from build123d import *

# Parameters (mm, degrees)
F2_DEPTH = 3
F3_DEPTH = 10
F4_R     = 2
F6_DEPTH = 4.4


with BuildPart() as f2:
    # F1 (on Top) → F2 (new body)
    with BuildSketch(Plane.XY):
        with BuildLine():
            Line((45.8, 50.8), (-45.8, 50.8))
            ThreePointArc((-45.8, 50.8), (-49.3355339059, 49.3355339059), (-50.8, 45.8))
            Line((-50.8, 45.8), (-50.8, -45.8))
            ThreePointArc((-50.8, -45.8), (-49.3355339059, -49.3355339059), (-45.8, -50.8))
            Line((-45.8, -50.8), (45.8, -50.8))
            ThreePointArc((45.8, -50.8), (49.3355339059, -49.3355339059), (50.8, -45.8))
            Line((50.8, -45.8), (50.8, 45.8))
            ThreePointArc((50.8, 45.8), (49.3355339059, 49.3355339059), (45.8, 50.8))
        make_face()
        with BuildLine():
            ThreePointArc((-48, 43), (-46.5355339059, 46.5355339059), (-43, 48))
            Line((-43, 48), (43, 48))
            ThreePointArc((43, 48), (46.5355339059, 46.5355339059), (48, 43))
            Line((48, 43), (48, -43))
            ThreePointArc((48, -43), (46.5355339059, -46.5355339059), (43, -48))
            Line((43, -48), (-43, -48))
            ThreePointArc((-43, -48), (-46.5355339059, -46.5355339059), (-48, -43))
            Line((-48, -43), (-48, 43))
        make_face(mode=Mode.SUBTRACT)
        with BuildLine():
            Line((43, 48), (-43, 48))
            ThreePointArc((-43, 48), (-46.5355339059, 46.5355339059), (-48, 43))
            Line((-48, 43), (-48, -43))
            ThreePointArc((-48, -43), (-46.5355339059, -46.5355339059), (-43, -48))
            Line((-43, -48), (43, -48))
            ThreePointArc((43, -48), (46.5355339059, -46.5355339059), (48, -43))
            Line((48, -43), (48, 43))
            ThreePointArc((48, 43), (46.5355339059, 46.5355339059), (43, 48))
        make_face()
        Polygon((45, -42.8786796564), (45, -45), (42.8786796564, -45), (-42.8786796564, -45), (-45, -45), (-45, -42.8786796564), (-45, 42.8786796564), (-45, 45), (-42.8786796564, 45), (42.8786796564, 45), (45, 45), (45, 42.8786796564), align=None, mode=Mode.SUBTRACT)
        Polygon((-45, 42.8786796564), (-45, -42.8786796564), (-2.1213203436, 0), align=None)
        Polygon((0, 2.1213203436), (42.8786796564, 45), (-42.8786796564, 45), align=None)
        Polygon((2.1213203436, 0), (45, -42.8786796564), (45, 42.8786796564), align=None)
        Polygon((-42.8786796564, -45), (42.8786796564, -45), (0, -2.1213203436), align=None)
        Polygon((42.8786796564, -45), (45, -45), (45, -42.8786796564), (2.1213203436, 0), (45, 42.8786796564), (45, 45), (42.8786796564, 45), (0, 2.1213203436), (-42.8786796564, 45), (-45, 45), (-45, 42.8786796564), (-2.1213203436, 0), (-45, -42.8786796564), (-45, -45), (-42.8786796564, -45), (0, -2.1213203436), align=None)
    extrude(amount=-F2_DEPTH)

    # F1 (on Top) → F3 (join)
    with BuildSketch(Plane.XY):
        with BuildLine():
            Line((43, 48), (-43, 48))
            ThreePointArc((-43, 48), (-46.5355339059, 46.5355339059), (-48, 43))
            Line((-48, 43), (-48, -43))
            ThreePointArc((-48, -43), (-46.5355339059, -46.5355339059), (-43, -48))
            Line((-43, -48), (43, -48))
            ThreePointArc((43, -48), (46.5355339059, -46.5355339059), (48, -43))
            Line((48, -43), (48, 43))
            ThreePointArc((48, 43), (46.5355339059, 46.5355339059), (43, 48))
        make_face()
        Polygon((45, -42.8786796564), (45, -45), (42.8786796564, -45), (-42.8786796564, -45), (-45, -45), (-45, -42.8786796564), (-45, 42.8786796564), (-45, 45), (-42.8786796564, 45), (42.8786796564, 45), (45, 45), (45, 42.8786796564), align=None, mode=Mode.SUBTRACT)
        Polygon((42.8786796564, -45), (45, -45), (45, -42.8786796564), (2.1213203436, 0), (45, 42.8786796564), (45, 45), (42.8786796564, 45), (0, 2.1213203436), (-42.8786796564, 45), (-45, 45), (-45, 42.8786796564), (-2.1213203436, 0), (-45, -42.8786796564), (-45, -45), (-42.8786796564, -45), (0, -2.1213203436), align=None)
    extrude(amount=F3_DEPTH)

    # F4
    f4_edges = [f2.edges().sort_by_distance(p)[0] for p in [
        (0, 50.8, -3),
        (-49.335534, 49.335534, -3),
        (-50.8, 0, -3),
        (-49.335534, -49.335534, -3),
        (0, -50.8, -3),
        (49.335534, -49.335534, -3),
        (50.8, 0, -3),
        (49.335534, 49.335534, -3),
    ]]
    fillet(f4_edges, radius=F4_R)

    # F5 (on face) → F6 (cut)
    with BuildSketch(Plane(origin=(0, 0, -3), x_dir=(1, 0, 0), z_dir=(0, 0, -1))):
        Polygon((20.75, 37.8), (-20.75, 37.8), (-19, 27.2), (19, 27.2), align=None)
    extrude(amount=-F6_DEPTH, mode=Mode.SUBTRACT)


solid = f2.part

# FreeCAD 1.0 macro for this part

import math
import FreeCAD as App
import Part
import Sketcher

V = App.Vector
Q = App.Units.Quantity


def edges_at(feature, points):
    """Names of the edges that pass closest to the given points."""
    edges = feature.Shape.Edges
    near = lambda p: min(range(len(edges)), key=lambda i: edges[i].distToShape(Part.Vertex(*p))[0])
    return sorted({f"Edge{near(p) + 1}" for p in points})

doc = App.newDocument("Part")
params = doc.addObject("Spreadsheet::Sheet", "Params")
for row, (alias, value) in enumerate([
    ("sketch1_radius", "5 mm"),
    ("sketch1_width", "91.6 mm"),
    ("pad1_length", "3 mm"),
    ("sketch2_radius", "5 mm"),
    ("sketch2_width", "86 mm"),
    ("pad2_length", "10 mm"),
    ("fillet_radius", "2 mm"),
    ("sketch3_width", "38 mm"),
    ("sketch3_width2", "41.5 mm"),
    ("pocket1_length", "4.4 mm"),
], start=1):
    params.set(f"A{row}", alias)
    params.set(f"B{row}", "=" + value)
    params.setAlias(f"B{row}", alias)

body = doc.addObject("PartDesign::Body", "Body")

# Sketch on XY plane
sketch1 = body.newObject("Sketcher::SketchObject", "Sketch")
sketch1.AttachmentSupport = (doc.getObject("XY_Plane"), [""])
sketch1.MapMode = "FlatFace"
sketch1.addGeometry([
    Part.LineSegment(V(46, 51, 0), V(-46, 51, 0)),  # 0
    Part.ArcOfCircle(Part.Circle(V(-46, 46, 0), V(0, 0, 1), 5), math.radians(90), math.radians(180)),  # 1
    Part.LineSegment(V(-51, 46, 0), V(-51, -46, 0)),  # 2
    Part.ArcOfCircle(Part.Circle(V(-46, -46, 0), V(0, 0, 1), 5), math.radians(180), math.radians(270)),  # 3
    Part.LineSegment(V(-46, -51, 0), V(46, -51, 0)),  # 4
    Part.ArcOfCircle(Part.Circle(V(46, -46, 0), V(0, 0, 1), 5), math.radians(-90), math.radians(0)),  # 5
    Part.LineSegment(V(51, -46, 0), V(51, 46, 0)),  # 6
    Part.ArcOfCircle(Part.Circle(V(46, 46, 0), V(0, 0, 1), 5), math.radians(0), math.radians(90)),  # 7
], False)
sketch1.addConstraint([
    Sketcher.Constraint("Tangent", 0, 2, 1, 1),
    Sketcher.Constraint("Tangent", 1, 2, 2, 1),
    Sketcher.Constraint("Tangent", 2, 2, 3, 1),
    Sketcher.Constraint("Tangent", 3, 2, 4, 1),
    Sketcher.Constraint("Tangent", 4, 2, 5, 1),
    Sketcher.Constraint("Tangent", 5, 2, 6, 1),
    Sketcher.Constraint("Tangent", 6, 2, 7, 1),
    Sketcher.Constraint("Tangent", 7, 2, 0, 1),
    Sketcher.Constraint("Horizontal", 0),
    Sketcher.Constraint("Vertical", 2),
    Sketcher.Constraint("Horizontal", 4),
    Sketcher.Constraint("Vertical", 6),
    Sketcher.Constraint("Equal", 1, 3),
    Sketcher.Constraint("Equal", 3, 5),
    Sketcher.Constraint("Equal", 5, 7),
    Sketcher.Constraint("Symmetric", 1, 3, 5, 3, -1, 1),
    Sketcher.Constraint("Equal", 4, 2),
    Sketcher.Constraint("Radius", 1, Q("5 mm")),
    Sketcher.Constraint("DistanceX", 0, 2, 0, 1, Q("91.6 mm")),
])
sketch1.setExpression("Constraints[17]", "Params.sketch1_radius")
sketch1.setExpression("Constraints[18]", "Params.sketch1_width")
pad1 = body.newObject("PartDesign::Pad", "Pad")
pad1.Profile = sketch1
pad1.setExpression("Length", "Params.pad1_length")
pad1.Reversed = True

# Sketch on XY plane
sketch2 = body.newObject("Sketcher::SketchObject", "Sketch001")
sketch2.AttachmentSupport = (doc.getObject("XY_Plane"), [""])
sketch2.MapMode = "FlatFace"
sketch2.addGeometry([
    Part.LineSegment(V(43, 48, 0), V(-43, 48, 0)),  # 0
    Part.ArcOfCircle(Part.Circle(V(-43, 43, 0), V(0, 0, 1), 5), math.radians(90), math.radians(180)),  # 1
    Part.LineSegment(V(-48, 43, 0), V(-48, -43, 0)),  # 2
    Part.ArcOfCircle(Part.Circle(V(-43, -43, 0), V(0, 0, 1), 5), math.radians(180), math.radians(270)),  # 3
    Part.LineSegment(V(-43, -48, 0), V(43, -48, 0)),  # 4
    Part.ArcOfCircle(Part.Circle(V(43, -43, 0), V(0, 0, 1), 5), math.radians(-90), math.radians(0)),  # 5
    Part.LineSegment(V(48, -43, 0), V(48, 43, 0)),  # 6
    Part.ArcOfCircle(Part.Circle(V(43, 43, 0), V(0, 0, 1), 5), math.radians(0), math.radians(90)),  # 7
    Part.LineSegment(V(45, 43, 0), V(45, -43, 0)),  # 8
    Part.LineSegment(V(45, -43, 0), V(2, 0, 0)),  # 9
    Part.LineSegment(V(2, 0, 0), V(45, 43, 0)),  # 10
    Part.LineSegment(V(43, -45, 0), V(-43, -45, 0)),  # 11
    Part.LineSegment(V(-43, -45, 0), V(0, -2, 0)),  # 12
    Part.LineSegment(V(0, -2, 0), V(43, -45, 0)),  # 13
    Part.LineSegment(V(-45, -43, 0), V(-45, 43, 0)),  # 14
    Part.LineSegment(V(-45, 43, 0), V(-2, 0, 0)),  # 15
    Part.LineSegment(V(-2, 0, 0), V(-45, -43, 0)),  # 16
    Part.LineSegment(V(-43, 45, 0), V(43, 45, 0)),  # 17
    Part.LineSegment(V(43, 45, 0), V(0, 2, 0)),  # 18
    Part.LineSegment(V(0, 2, 0), V(-43, 45, 0)),  # 19
], False)
sketch2.addConstraint([
    Sketcher.Constraint("Tangent", 0, 2, 1, 1),
    Sketcher.Constraint("Tangent", 1, 2, 2, 1),
    Sketcher.Constraint("Tangent", 2, 2, 3, 1),
    Sketcher.Constraint("Tangent", 3, 2, 4, 1),
    Sketcher.Constraint("Tangent", 4, 2, 5, 1),
    Sketcher.Constraint("Tangent", 5, 2, 6, 1),
    Sketcher.Constraint("Tangent", 6, 2, 7, 1),
    Sketcher.Constraint("Tangent", 7, 2, 0, 1),
    Sketcher.Constraint("Coincident", 8, 2, 9, 1),
    Sketcher.Constraint("Coincident", 9, 2, 10, 1),
    Sketcher.Constraint("Coincident", 10, 2, 8, 1),
    Sketcher.Constraint("Coincident", 11, 2, 12, 1),
    Sketcher.Constraint("Coincident", 12, 2, 13, 1),
    Sketcher.Constraint("Coincident", 13, 2, 11, 1),
    Sketcher.Constraint("Coincident", 14, 2, 15, 1),
    Sketcher.Constraint("Coincident", 15, 2, 16, 1),
    Sketcher.Constraint("Coincident", 16, 2, 14, 1),
    Sketcher.Constraint("Coincident", 17, 2, 18, 1),
    Sketcher.Constraint("Coincident", 18, 2, 19, 1),
    Sketcher.Constraint("Coincident", 19, 2, 17, 1),
    Sketcher.Constraint("Horizontal", 0),
    Sketcher.Constraint("Vertical", 2),
    Sketcher.Constraint("Horizontal", 4),
    Sketcher.Constraint("Vertical", 6),
    Sketcher.Constraint("Vertical", 8),
    Sketcher.Constraint("Horizontal", 11),
    Sketcher.Constraint("Vertical", 14),
    Sketcher.Constraint("Horizontal", 17),
    Sketcher.Constraint("Equal", 1, 3),
    Sketcher.Constraint("Equal", 3, 5),
    Sketcher.Constraint("Equal", 5, 7),
    Sketcher.Constraint("Symmetric", 1, 3, 5, 3, -1, 1),
    Sketcher.Constraint("Symmetric", 8, 2, 14, 2, -1, 1),
    Sketcher.Constraint("Symmetric", 9, 2, 15, 2, -1, 1),
    Sketcher.Constraint("Symmetric", 11, 2, 17, 2, -1, 1),
    Sketcher.Constraint("Symmetric", 12, 2, 18, 2, -1, 1),
    Sketcher.Constraint("PointOnObject", 9, 2, -1),
    Sketcher.Constraint("PointOnObject", 12, 2, -2),
    Sketcher.Constraint("Perpendicular", 9, 10),
    Sketcher.Constraint("Parallel", 10, 12),
    Sketcher.Constraint("Perpendicular", 12, 13),
    Sketcher.Constraint("Perpendicular", 15, 16),
    Sketcher.Constraint("Perpendicular", 18, 19),
    Sketcher.Constraint("Horizontal", 10, 2, 14, 2),
    Sketcher.Constraint("Equal", 4, 2),
    Sketcher.Constraint("Equal", 17, 8),
    Sketcher.Constraint("Radius", 1, Q("5 mm")),
    Sketcher.Constraint("DistanceX", 0, 2, 0, 1, Q("86 mm")),
    Sketcher.Constraint("DistanceX", -1, 1, 8, 2, Q("45 mm")),
    Sketcher.Constraint("DistanceY", 11, 2, -1, 1, Q("45 mm")),
    Sketcher.Constraint("DistanceX", 11, 2, 11, 1, Q("85.757359 mm")),
])
sketch2.setExpression("Constraints[46]", "Params.sketch2_radius")
sketch2.setExpression("Constraints[47]", "Params.sketch2_width")
pad2 = body.newObject("PartDesign::Pad", "Pad001")
pad2.Profile = sketch2
pad2.setExpression("Length", "Params.pad2_length")
doc.recompute()

fillet = body.newObject("PartDesign::Fillet", "Fillet")
fillet.Base = (pad2, edges_at(pad2, [
    (0, 50.8, -3),
    (-49.336, 49.336, -3),
    (-50.8, 0, -3),
    (-49.336, -49.336, -3),
    (0, -50.8, -3),
    (49.336, -49.336, -3),
    (50.8, 0, -3),
    (49.336, 49.336, -3),
]))
fillet.setExpression("Radius", "Params.fillet_radius")

# Sketch on XY plane
sketch3 = body.newObject("Sketcher::SketchObject", "Sketch002")
sketch3.AttachmentSupport = (doc.getObject("XY_Plane"), [""])
sketch3.MapMode = "FlatFace"
sketch3.AttachmentOffset = App.Placement(V(0, 0, -3), App.Rotation())
sketch3.addGeometry([
    Part.LineSegment(V(21, -38, 0), V(-21, -38, 0)),
    Part.LineSegment(V(-21, -38, 0), V(-19, -27, 0)),
    Part.LineSegment(V(-19, -27, 0), V(19, -27, 0)),
    Part.LineSegment(V(19, -27, 0), V(21, -38, 0)),
], False)
sketch3.addConstraint([
    Sketcher.Constraint("Coincident", 0, 2, 1, 1),
    Sketcher.Constraint("Coincident", 1, 2, 2, 1),
    Sketcher.Constraint("Coincident", 2, 2, 3, 1),
    Sketcher.Constraint("Coincident", 3, 2, 0, 1),
    Sketcher.Constraint("Horizontal", 0),
    Sketcher.Constraint("Horizontal", 2),
    Sketcher.Constraint("Equal", 1, 3),
    Sketcher.Constraint("DistanceX", 2, 1, 2, 2, Q("38 mm")),
    Sketcher.Constraint("DistanceX", 0, 2, 0, 1, Q("41.5 mm")),
    Sketcher.Constraint("DistanceX", 1, 2, -1, 1, Q("19 mm")),
    Sketcher.Constraint("DistanceY", 0, 2, -1, 1, Q("37.8 mm")),
    Sketcher.Constraint("DistanceY", 1, 2, -1, 1, Q("27.2 mm")),
])
sketch3.setExpression("Constraints[7]", "Params.sketch3_width")
sketch3.setExpression("Constraints[8]", "Params.sketch3_width2")
pocket1 = body.newObject("PartDesign::Pocket", "Pocket")
pocket1.Profile = sketch3
pocket1.setExpression("Length", "Params.pocket1_length")
pocket1.Reversed = True

doc.recompute()
